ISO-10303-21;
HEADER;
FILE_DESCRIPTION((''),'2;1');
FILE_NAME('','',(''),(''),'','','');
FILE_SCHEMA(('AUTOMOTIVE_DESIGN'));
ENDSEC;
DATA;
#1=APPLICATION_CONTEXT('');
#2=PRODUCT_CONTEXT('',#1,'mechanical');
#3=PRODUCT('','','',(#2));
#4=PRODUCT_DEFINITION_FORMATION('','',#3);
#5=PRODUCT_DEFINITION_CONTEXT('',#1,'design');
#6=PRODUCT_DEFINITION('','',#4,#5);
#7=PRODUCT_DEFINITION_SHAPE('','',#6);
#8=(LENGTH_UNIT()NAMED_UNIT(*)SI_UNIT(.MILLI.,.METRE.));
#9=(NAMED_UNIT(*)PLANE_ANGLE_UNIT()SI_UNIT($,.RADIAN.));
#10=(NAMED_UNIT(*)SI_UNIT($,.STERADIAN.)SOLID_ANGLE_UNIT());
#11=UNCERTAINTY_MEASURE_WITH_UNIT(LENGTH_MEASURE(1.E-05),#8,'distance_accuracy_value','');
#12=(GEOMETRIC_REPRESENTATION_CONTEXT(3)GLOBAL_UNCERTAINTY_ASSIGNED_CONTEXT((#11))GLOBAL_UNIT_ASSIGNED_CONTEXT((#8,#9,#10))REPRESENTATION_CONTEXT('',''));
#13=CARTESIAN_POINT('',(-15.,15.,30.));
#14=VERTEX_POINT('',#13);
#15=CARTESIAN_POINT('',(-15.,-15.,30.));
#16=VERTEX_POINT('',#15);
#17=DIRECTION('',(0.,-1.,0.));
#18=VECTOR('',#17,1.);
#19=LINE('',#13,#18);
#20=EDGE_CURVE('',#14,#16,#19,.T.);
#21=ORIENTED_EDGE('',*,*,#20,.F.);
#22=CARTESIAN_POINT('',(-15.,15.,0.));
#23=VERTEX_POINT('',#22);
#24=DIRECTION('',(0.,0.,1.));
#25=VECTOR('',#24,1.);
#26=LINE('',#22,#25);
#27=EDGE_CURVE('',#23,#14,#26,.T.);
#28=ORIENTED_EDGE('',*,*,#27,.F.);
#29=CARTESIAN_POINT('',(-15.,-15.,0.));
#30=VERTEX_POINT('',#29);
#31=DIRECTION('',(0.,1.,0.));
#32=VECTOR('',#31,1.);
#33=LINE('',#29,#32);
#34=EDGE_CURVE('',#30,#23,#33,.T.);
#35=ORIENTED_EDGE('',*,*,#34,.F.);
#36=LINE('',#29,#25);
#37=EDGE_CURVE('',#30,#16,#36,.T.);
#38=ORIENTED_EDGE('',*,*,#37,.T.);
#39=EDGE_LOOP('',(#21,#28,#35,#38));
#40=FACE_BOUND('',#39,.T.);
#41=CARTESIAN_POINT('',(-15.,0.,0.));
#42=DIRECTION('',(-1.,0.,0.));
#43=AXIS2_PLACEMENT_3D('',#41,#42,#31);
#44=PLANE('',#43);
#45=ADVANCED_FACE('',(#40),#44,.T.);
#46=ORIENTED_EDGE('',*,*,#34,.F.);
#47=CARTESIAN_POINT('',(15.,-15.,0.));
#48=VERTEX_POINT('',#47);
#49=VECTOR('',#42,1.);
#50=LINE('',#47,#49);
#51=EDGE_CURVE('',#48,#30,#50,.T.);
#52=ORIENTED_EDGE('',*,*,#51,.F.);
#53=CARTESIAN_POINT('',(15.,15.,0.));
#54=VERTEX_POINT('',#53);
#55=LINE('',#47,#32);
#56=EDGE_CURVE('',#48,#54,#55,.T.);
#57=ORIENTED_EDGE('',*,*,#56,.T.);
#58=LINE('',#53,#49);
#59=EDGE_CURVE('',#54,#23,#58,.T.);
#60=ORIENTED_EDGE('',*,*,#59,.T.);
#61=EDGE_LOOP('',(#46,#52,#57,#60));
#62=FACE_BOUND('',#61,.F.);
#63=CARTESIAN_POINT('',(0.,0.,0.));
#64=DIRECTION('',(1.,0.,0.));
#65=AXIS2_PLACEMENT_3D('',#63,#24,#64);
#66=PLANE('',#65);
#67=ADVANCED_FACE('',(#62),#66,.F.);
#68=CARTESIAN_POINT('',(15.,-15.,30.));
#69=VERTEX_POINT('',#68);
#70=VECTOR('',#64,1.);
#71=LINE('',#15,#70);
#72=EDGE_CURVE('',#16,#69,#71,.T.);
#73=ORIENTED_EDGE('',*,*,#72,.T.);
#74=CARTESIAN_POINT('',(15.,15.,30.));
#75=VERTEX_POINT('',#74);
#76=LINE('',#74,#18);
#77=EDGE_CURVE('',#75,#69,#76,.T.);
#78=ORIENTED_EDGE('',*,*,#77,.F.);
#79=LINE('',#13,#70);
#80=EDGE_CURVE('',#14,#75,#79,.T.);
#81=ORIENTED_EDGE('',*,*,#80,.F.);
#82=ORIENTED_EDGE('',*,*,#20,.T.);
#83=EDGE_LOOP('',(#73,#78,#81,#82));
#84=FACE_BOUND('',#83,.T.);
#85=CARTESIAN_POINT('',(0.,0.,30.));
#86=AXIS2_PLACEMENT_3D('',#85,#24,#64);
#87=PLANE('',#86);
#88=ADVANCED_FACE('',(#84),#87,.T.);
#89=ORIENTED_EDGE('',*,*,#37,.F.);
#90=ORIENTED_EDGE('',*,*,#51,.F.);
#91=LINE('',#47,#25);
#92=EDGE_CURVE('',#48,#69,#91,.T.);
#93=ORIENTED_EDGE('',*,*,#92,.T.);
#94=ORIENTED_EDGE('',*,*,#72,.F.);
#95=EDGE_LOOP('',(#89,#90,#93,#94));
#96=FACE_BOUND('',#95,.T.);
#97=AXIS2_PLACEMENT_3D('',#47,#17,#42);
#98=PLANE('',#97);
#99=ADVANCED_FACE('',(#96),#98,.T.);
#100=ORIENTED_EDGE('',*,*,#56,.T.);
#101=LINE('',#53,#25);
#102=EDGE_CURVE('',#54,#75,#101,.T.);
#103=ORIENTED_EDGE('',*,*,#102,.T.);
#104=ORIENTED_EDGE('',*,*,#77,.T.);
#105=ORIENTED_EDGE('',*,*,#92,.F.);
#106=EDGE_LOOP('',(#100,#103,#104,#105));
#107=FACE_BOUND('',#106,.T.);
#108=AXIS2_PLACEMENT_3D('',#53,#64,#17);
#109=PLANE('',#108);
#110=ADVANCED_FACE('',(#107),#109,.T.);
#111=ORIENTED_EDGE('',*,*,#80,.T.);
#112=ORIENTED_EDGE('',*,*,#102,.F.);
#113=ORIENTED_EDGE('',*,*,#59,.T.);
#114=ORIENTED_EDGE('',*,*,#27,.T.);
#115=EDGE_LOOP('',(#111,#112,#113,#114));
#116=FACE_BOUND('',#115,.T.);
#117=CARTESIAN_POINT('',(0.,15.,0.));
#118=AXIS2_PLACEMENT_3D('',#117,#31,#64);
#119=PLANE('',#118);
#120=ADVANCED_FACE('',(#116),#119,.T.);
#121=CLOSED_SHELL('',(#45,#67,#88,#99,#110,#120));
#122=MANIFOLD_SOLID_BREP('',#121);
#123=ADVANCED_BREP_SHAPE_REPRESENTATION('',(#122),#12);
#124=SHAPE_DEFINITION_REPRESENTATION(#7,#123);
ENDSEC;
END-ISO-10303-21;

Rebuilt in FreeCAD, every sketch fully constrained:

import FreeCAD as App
import Part
import Sketcher
from FreeCAD import Vector


def add_polygon(sketch, points):
    """Adds a closed chain of lines whose ends are joined by coincident constraints."""
    first, n = sketch.GeometryCount, len(points)
    for a, b in zip(points, points[1:] + points[:1]):
        sketch.addGeometry(Part.LineSegment(App.Vector(*a, 0), App.Vector(*b, 0)), False)
    for i in range(n):
        sketch.addConstraint(Sketcher.Constraint("Coincident", first + i, 2, first + (i + 1) % n, 1))

doc = App.newDocument("Part")
body = doc.addObject("PartDesign::Body", "Body")

# Sketch on XY plane
sketch1 = doc.addObject("Sketcher::SketchObject", "Sketch")
body.addObject(sketch1)
sketch1.AttachmentSupport = (doc.XY_Plane, [""])
sketch1.MapMode = "FlatFace"
add_polygon(sketch1, [(15, 15), (-15, 15), (-15, -15), (15, -15)])  # lines 0-3
sketch1.addConstraint([
    Sketcher.Constraint("Horizontal", 0),
    Sketcher.Constraint("Vertical", 1),
    Sketcher.Constraint("Horizontal", 2),
    Sketcher.Constraint("Vertical", 3),
    Sketcher.Constraint("Symmetric", 0, 2, 2, 2, -1, 1),
    Sketcher.Constraint("Equal", 2, 1),
    Sketcher.Constraint("DistanceX", 0, 2, 0, 1, 30.0),
])
pad1 = doc.addObject("PartDesign::Pad", "Pad")
body.addObject(pad1)
pad1.Profile = sketch1
pad1.Length = 30

doc.recompute()
